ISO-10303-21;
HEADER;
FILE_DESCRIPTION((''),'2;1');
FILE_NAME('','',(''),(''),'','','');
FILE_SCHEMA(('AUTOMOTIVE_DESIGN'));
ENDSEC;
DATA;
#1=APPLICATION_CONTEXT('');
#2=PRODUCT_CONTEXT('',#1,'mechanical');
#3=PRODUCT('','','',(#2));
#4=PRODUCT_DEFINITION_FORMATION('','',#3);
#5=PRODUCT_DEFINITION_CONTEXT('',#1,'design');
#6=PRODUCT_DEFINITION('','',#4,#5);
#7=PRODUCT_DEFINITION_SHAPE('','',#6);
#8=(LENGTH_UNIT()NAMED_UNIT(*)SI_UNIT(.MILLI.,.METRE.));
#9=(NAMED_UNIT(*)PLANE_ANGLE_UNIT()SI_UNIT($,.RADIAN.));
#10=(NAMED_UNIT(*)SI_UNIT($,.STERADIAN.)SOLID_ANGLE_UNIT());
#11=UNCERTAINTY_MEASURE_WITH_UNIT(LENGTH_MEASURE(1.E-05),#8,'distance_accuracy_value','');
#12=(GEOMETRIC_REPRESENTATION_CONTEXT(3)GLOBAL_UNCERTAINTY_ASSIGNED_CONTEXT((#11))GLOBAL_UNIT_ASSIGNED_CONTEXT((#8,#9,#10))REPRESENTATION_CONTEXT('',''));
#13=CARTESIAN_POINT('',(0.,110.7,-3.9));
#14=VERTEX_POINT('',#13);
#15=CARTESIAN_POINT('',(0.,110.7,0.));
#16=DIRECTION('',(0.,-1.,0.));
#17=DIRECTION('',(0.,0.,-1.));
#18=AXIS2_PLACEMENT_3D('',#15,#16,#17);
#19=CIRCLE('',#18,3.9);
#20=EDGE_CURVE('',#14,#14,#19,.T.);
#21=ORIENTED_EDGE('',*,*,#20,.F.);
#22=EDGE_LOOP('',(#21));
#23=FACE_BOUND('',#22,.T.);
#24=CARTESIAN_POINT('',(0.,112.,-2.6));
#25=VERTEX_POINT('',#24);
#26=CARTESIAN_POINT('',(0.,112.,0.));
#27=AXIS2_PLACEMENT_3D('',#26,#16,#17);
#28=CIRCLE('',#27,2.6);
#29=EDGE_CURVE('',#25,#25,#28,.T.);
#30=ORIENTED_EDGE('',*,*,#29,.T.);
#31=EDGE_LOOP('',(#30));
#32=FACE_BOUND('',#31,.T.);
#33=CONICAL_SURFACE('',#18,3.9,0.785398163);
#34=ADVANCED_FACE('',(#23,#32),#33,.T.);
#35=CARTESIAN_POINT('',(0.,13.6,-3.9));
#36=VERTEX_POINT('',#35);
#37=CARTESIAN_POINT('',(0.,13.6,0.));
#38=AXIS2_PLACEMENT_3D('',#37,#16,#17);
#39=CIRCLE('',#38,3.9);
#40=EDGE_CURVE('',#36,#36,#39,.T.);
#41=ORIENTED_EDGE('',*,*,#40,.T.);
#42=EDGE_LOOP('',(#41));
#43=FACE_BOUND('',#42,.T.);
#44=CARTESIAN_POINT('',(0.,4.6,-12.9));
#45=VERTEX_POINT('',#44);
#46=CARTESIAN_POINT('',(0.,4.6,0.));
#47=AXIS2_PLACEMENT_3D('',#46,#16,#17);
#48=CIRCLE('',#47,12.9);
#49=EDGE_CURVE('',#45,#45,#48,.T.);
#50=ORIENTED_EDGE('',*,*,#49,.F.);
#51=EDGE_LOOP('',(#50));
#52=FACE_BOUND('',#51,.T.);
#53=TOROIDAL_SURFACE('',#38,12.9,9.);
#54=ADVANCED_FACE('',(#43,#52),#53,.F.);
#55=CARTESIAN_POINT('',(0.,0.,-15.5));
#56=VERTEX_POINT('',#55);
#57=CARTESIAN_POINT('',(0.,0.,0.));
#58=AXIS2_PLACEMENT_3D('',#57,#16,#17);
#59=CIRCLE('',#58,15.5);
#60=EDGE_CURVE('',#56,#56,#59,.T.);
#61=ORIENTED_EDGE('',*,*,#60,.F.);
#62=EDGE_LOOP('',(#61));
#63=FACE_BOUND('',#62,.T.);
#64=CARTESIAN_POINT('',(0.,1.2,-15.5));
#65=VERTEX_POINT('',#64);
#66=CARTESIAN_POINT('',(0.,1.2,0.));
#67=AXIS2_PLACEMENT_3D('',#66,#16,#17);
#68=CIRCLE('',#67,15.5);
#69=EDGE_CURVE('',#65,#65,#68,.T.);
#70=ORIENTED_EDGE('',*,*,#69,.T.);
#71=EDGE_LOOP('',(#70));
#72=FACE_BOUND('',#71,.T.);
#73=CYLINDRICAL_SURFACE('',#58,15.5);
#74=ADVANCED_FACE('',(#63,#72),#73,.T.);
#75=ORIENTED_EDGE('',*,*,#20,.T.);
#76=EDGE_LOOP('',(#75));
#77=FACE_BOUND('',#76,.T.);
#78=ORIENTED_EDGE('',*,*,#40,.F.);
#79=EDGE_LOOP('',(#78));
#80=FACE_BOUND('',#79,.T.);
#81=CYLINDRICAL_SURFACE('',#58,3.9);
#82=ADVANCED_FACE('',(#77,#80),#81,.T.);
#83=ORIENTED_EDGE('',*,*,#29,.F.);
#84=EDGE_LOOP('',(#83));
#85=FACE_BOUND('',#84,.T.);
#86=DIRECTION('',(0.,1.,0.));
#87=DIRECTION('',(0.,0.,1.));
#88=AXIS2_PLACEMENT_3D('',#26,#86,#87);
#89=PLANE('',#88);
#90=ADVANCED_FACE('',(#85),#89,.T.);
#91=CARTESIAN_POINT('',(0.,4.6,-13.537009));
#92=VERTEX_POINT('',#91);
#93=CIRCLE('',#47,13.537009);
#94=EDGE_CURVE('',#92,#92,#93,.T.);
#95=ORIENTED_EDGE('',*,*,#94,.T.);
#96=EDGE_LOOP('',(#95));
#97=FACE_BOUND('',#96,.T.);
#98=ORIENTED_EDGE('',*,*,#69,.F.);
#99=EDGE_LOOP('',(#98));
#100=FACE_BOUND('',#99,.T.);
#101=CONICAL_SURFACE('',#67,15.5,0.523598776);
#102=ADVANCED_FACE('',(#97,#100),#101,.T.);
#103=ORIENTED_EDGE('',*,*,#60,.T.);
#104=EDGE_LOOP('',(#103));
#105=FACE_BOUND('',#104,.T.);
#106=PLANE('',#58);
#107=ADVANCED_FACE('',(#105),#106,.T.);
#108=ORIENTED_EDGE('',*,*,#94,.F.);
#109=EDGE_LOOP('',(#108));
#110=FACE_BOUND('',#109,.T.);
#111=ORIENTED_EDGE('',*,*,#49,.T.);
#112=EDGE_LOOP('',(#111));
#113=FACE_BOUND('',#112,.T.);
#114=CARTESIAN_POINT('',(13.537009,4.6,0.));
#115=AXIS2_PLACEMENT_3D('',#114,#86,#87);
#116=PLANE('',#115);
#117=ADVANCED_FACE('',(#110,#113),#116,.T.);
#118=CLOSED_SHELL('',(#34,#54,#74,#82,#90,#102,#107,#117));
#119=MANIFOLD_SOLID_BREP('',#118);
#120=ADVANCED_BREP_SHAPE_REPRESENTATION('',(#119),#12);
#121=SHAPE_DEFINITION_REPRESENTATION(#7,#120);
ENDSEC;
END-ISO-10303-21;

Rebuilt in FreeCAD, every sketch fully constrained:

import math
import FreeCAD as App
import Part
import Sketcher
Q = App.Units.Quantity

doc = App.newDocument("Part")
params = doc.addObject("Spreadsheet::Sheet", "Params")
for row, (alias, value) in enumerate([
    ("sketch1_radius", "9 mm"),
    ("sketch1_height", "112 mm"),
    ("sketch1_width", "15.5 mm"),
    ("sketch1_width2", "2.6 mm"),
    ("sketch1_height2", "1.2 mm"),
    ("revolution_angle", "360 deg"),
], start=1):
    params.set(f"A{row}", alias)
    params.set(f"B{row}", "=" + value)
    params.setAlias(f"B{row}", alias)

body = doc.addObject("PartDesign::Body", "Body")

sketch1 = body.newObject("Sketcher::SketchObject", "Sketch")
sketch1.AttachmentSupport = (doc.getObject("XY_Plane"), [""])
sketch1.MapMode = "FlatFace"
sketch1.addGeometry(Part.LineSegment(App.Vector(0, 112, 0), App.Vector(0, 0, 0)), False)
sketch1.addGeometry(Part.LineSegment(App.Vector(0, 0, 0), App.Vector(15.5, 0, 0)), False)
sketch1.addGeometry(Part.LineSegment(App.Vector(15.5, 0, 0), App.Vector(15.5, 1.2, 0)), False)
sketch1.addGeometry(Part.LineSegment(App.Vector(15.5, 1.2, 0), App.Vector(13.5, 4.6, 0)), False)
sketch1.addGeometry(Part.LineSegment(App.Vector(13.5, 4.6, 0), App.Vector(12.9, 4.6, 0)), False)
sketch1.addGeometry(Part.ArcOfCircle(Part.Circle(App.Vector(12.9, 13.6, 0), App.Vector(0, 0, 1), 9), math.radians(180), math.radians(270)), False)
sketch1.addGeometry(Part.LineSegment(App.Vector(3.9, 13.6, 0), App.Vector(3.9, 110.7, 0)), False)
sketch1.addGeometry(Part.LineSegment(App.Vector(3.9, 110.7, 0), App.Vector(2.6, 112, 0)), False)
sketch1.addGeometry(Part.LineSegment(App.Vector(2.6, 112, 0), App.Vector(0, 112, 0)), False)
sketch1.addConstraint(Sketcher.Constraint("Coincident", 0, 2, 1, 1))
sketch1.addConstraint(Sketcher.Constraint("Coincident", 1, 2, 2, 1))
sketch1.addConstraint(Sketcher.Constraint("Coincident", 2, 2, 3, 1))
sketch1.addConstraint(Sketcher.Constraint("Coincident", 3, 2, 4, 1))
sketch1.addConstraint(Sketcher.Constraint("Tangent", 4, 2, 5, 2))
sketch1.addConstraint(Sketcher.Constraint("Tangent", 5, 1, 6, 1))
sketch1.addConstraint(Sketcher.Constraint("Coincident", 6, 2, 7, 1))
sketch1.addConstraint(Sketcher.Constraint("Coincident", 7, 2, 8, 1))
sketch1.addConstraint(Sketcher.Constraint("Coincident", 8, 2, 0, 1))
sketch1.addConstraint(Sketcher.Constraint("Vertical", 0))
sketch1.addConstraint(Sketcher.Constraint("Horizontal", 1))
sketch1.addConstraint(Sketcher.Constraint("Vertical", 2))
sketch1.addConstraint(Sketcher.Constraint("Horizontal", 4))
sketch1.addConstraint(Sketcher.Constraint("Vertical", 6))
sketch1.addConstraint(Sketcher.Constraint("Horizontal", 8))
sketch1.addConstraint(Sketcher.Constraint("Coincident", 0, 2, -1, 1))
sketch1.addConstraint(Sketcher.Constraint("Radius", 5, 9.0))
sketch1.addConstraint(Sketcher.Constraint("DistanceY", 0, 2, 0, 1, 112.0))
sketch1.addConstraint(Sketcher.Constraint("Angle", 3, Q("120 deg")))
sketch1.addConstraint(Sketcher.Constraint("Angle", 7, Q("135 deg")))
sketch1.addConstraint(Sketcher.Constraint("DistanceX", 1, 1, 1, 2, 15.5))
sketch1.addConstraint(Sketcher.Constraint("DistanceX", 8, 2, 8, 1, 2.6))
sketch1.addConstraint(Sketcher.Constraint("DistanceY", 2, 1, 2, 2, 1.2))
sketch1.addConstraint(Sketcher.Constraint("DistanceY", 6, 1, 6, 2, 97.1))
sketch1.addConstraint(Sketcher.Constraint("DistanceX", -1, 1, 5, 3, 12.9))
sketch1.setExpression("Constraints[16]", "Params.sketch1_radius")
sketch1.setExpression("Constraints[17]", "Params.sketch1_height")
sketch1.setExpression("Constraints[20]", "Params.sketch1_width")
sketch1.setExpression("Constraints[21]", "Params.sketch1_width2")
sketch1.setExpression("Constraints[22]", "Params.sketch1_height2")
revolution = body.newObject("PartDesign::Revolution", "Revolution")
revolution.Profile = sketch1
revolution.ReferenceAxis = (sketch1, ["V_Axis"])
revolution.setExpression("Angle", "Params.revolution_angle")

doc.recompute()
